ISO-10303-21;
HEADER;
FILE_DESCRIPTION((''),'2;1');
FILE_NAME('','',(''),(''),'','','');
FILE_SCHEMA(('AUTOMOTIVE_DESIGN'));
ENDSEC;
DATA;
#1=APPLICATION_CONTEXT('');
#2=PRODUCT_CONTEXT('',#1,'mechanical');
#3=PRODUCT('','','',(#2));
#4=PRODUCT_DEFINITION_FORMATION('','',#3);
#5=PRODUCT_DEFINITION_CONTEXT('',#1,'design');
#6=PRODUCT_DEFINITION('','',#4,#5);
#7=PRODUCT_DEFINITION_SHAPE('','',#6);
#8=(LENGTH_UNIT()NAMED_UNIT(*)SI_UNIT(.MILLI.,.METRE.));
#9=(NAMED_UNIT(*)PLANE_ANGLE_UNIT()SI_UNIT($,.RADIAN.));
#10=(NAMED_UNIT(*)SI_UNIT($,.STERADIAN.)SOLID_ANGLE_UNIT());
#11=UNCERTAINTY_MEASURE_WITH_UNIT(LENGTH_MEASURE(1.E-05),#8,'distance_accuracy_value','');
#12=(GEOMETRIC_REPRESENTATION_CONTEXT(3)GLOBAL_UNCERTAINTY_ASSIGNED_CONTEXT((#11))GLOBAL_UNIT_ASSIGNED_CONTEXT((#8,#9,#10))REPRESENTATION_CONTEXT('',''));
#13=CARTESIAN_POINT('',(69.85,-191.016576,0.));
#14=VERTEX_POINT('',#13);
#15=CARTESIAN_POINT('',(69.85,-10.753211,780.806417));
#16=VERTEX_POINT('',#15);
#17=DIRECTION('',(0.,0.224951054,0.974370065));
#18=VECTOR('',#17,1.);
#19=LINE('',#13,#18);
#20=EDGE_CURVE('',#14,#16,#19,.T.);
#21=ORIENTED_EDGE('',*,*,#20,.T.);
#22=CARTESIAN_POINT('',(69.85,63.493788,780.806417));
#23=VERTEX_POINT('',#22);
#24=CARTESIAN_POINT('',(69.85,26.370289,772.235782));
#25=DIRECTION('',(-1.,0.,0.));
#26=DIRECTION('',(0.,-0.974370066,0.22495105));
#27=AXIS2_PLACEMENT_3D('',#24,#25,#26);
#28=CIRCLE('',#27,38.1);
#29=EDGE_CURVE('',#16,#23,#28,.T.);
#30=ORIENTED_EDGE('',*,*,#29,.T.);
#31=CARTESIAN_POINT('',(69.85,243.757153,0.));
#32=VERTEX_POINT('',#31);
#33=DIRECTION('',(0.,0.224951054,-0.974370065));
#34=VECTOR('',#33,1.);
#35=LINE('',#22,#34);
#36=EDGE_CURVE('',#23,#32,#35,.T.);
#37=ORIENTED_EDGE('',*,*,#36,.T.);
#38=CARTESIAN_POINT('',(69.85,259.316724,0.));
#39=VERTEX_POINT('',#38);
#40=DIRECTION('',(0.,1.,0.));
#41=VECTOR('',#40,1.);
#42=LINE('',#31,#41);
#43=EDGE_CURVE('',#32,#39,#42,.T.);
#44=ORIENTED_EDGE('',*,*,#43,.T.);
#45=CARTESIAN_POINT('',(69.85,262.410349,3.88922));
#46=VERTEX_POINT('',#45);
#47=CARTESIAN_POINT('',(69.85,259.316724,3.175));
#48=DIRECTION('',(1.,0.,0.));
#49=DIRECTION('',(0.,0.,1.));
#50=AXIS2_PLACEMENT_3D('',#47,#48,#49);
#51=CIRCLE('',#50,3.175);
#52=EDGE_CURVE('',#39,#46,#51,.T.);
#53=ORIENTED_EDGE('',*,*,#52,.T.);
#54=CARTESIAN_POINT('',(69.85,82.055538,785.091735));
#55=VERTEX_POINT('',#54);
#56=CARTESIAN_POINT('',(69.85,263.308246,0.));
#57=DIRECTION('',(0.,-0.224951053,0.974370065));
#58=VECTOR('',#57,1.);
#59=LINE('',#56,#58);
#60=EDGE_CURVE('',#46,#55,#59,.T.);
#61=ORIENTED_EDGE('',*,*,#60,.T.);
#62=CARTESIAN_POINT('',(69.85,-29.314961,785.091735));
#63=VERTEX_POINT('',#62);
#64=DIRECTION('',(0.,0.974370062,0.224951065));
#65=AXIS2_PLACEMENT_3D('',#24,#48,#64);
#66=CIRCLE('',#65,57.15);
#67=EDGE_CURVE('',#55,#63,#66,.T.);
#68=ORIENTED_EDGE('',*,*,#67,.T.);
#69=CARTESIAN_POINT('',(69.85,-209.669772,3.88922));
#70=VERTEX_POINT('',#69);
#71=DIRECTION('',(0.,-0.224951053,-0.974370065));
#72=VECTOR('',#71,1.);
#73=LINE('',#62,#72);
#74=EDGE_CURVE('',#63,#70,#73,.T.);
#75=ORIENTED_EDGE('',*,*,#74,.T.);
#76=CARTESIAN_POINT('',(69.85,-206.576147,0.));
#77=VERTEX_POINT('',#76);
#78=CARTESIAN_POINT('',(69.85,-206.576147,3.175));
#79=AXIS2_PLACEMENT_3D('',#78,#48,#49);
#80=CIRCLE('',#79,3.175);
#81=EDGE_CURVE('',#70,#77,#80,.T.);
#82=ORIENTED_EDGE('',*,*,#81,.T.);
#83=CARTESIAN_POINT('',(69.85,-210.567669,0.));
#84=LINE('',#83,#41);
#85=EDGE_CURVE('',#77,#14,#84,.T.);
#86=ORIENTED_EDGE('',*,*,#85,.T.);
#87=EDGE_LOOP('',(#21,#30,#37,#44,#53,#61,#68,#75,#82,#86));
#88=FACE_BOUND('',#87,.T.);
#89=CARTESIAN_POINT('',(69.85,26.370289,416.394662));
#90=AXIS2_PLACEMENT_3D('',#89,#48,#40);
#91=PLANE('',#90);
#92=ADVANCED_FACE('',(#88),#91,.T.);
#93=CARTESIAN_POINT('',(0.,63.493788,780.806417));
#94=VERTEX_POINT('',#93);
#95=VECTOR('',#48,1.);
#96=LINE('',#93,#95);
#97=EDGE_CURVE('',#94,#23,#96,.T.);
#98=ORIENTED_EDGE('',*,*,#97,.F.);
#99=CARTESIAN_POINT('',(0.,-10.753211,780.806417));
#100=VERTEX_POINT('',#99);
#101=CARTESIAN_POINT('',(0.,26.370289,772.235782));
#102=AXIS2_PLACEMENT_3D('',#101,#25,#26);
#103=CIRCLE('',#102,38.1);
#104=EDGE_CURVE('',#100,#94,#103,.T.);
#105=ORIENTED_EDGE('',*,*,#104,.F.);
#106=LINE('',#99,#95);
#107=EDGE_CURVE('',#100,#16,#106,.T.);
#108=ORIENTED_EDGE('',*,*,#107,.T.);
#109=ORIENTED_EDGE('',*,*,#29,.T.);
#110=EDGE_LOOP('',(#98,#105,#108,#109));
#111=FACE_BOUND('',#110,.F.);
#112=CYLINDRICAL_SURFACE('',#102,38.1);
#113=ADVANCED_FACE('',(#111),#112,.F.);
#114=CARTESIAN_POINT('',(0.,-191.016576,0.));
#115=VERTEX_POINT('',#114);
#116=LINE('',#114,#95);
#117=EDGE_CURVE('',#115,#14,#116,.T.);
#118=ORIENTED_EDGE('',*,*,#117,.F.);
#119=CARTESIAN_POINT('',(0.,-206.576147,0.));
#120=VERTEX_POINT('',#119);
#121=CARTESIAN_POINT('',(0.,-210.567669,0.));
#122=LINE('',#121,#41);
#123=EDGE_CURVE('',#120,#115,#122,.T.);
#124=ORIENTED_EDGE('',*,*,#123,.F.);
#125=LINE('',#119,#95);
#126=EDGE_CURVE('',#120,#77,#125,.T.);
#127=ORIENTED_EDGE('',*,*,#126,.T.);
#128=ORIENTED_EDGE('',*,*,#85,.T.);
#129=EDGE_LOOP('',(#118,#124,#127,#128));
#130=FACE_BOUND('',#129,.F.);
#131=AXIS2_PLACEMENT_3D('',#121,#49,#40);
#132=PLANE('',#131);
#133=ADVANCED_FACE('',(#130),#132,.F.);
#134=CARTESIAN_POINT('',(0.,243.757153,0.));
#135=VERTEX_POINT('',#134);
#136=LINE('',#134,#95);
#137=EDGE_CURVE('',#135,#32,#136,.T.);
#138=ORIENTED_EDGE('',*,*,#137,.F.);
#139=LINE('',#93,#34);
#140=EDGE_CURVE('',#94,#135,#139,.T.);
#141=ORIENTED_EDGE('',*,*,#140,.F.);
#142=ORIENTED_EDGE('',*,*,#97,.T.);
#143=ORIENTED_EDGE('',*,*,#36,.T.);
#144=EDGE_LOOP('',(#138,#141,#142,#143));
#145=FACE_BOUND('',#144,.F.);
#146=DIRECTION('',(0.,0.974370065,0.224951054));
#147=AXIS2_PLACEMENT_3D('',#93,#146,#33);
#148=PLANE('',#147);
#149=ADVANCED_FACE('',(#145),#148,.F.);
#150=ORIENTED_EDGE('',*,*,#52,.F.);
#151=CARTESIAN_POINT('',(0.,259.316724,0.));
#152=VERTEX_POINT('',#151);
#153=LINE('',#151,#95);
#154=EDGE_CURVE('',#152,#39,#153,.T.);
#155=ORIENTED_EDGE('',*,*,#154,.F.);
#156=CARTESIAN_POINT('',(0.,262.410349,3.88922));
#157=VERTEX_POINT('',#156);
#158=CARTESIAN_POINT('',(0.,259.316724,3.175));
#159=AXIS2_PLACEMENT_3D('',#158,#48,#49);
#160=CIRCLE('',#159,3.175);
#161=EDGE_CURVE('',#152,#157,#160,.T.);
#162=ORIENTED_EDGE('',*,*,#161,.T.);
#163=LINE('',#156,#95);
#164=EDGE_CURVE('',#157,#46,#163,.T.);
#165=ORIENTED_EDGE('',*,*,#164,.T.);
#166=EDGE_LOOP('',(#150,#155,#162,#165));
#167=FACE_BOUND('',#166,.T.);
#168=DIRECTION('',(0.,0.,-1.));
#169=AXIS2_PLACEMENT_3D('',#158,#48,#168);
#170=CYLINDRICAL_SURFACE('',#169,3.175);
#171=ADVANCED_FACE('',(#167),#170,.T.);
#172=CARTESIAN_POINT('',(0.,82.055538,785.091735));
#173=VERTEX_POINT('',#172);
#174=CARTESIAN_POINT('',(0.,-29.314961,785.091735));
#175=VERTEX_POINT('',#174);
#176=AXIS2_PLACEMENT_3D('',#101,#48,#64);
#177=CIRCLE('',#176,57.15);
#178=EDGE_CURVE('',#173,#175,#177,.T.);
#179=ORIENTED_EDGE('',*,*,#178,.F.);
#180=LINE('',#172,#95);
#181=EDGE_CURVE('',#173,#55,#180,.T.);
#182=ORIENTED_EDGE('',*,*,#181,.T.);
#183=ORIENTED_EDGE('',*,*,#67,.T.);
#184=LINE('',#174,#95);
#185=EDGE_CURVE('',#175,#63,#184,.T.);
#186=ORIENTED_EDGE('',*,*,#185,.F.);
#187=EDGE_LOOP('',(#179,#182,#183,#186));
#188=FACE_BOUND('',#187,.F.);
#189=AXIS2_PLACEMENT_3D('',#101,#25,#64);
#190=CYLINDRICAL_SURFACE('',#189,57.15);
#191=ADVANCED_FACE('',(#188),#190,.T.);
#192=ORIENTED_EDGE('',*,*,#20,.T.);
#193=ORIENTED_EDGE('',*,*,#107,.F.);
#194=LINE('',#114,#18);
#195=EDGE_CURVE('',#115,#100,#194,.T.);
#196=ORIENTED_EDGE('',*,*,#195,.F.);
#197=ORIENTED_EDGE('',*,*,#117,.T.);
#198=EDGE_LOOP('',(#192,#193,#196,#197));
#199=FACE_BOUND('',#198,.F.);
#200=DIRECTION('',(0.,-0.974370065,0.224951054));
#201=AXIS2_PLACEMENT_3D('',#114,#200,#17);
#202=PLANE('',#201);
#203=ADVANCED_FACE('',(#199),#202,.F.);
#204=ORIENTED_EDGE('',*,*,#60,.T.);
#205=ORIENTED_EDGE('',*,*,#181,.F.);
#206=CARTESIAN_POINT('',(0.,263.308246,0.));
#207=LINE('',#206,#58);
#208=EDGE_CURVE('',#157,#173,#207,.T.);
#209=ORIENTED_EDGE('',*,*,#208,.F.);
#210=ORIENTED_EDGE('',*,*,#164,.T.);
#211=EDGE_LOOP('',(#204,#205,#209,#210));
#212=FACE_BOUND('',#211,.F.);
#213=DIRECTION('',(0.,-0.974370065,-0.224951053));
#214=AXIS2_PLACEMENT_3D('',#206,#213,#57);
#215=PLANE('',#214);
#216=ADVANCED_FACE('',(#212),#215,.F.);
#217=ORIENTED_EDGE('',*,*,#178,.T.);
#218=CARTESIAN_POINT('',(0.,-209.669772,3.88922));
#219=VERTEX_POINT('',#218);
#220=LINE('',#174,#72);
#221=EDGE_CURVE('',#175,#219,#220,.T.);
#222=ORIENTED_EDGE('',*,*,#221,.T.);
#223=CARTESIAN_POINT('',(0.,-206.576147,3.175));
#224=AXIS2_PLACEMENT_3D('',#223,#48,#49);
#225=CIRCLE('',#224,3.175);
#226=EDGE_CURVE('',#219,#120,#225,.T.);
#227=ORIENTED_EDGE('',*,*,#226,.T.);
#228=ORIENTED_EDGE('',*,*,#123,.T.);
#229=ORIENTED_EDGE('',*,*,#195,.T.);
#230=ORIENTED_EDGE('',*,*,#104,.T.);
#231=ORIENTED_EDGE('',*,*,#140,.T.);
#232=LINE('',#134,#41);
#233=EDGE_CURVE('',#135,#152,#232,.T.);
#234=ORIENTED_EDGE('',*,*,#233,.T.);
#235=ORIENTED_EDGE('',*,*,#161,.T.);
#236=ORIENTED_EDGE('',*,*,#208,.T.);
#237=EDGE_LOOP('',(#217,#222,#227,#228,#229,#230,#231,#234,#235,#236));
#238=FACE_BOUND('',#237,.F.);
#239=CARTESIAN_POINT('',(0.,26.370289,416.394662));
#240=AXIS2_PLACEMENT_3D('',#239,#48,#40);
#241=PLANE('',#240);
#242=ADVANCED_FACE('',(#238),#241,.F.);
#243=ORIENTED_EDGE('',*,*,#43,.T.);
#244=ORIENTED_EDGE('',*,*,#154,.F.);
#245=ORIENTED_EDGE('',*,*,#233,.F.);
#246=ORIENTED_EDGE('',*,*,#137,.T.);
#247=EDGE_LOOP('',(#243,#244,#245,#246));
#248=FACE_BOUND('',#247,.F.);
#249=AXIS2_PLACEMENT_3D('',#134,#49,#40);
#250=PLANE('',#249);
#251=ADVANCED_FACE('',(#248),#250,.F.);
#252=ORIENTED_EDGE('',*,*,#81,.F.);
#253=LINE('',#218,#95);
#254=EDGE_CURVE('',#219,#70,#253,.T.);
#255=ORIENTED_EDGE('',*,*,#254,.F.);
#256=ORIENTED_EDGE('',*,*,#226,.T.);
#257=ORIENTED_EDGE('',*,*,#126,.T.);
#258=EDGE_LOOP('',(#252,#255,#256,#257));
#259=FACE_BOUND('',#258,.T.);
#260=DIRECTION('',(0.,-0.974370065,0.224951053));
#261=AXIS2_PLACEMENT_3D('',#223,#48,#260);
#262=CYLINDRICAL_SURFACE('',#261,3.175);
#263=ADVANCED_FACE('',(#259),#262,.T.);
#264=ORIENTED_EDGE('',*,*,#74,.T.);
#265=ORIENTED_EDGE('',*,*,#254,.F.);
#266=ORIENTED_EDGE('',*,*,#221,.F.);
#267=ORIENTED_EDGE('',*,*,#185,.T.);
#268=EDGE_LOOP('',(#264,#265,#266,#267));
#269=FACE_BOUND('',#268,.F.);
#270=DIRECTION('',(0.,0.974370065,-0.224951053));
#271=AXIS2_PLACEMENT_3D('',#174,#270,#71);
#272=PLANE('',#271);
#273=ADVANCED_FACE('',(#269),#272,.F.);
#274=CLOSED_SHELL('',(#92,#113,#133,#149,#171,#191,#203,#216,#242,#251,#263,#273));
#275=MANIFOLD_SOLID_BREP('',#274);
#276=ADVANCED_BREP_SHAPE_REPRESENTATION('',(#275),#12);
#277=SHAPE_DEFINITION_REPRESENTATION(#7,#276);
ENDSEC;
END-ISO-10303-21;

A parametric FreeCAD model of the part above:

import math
import FreeCAD as App
import Part
import Sketcher
Q = App.Units.Quantity


def edges_at(feature, points):
    """Names of the edges that pass closest to the given points."""
    edges = feature.Shape.Edges
    near = lambda p: min(range(len(edges)), key=lambda i: edges[i].distToShape(Part.Vertex(*p))[0])
    return sorted({f"Edge{near(p) + 1}" for p in points})

doc = App.newDocument("Part")
body = doc.addObject("PartDesign::Body", "Body")

# Sketch on YZ plane
sketch1 = body.newObject("Sketcher::SketchObject", "Sketch")
sketch1.AttachmentSupport = (doc.getObject("YZ_Plane"), [""])
sketch1.MapMode = "FlatFace"
sketch1.addGeometry([
    Part.LineSegment(App.Vector(-29, 785, 0), App.Vector(-211, 0, 0)),  # 0
    Part.LineSegment(App.Vector(-211, 0, 0), App.Vector(-191, 0, 0)),  # 1
    Part.LineSegment(App.Vector(-191, 0, 0), App.Vector(-11, 781, 0)),  # 2
    Part.ArcOfCircle(Part.Circle(App.Vector(26, 772, 0), App.Vector(0, 0, 1), 38), math.radians(13), math.radians(167)),  # 3
    Part.LineSegment(App.Vector(63, 781, 0), App.Vector(244, 0, 0)),  # 4
    Part.LineSegment(App.Vector(244, 0, 0), App.Vector(263, 0, 0)),  # 5
    Part.LineSegment(App.Vector(263, 0, 0), App.Vector(82, 785, 0)),  # 6
    Part.ArcOfCircle(Part.Circle(App.Vector(26, 772, 0), App.Vector(0, 0, 1), 57), math.radians(13), math.radians(167)),  # 7
], False)
sketch1.addConstraint([
    Sketcher.Constraint("Coincident", 0, 2, 1, 1),
    Sketcher.Constraint("Coincident", 1, 2, 2, 1),
    Sketcher.Constraint("Tangent", 2, 2, 3, 2),
    Sketcher.Constraint("Tangent", 3, 1, 4, 1),
    Sketcher.Constraint("Coincident", 4, 2, 5, 1),
    Sketcher.Constraint("Coincident", 5, 2, 6, 1),
    Sketcher.Constraint("Tangent", 6, 2, 7, 1),
    Sketcher.Constraint("Tangent", 7, 2, 0, 1),
    Sketcher.Constraint("Horizontal", 1),
    Sketcher.Constraint("Horizontal", 5),
    Sketcher.Constraint("Coincident", 7, 3, 3, 3),
    Sketcher.Constraint("PointOnObject", 0, 2, -1),
    Sketcher.Constraint("PointOnObject", 4, 2, -1),
    Sketcher.Constraint("Parallel", 0, 2),
    Sketcher.Constraint("Parallel", 4, 6),
    Sketcher.Constraint("Equal", 1, 5),
    Sketcher.Constraint("Radius", 3, Q("1.5 in")),
    Sketcher.Constraint("Radius", 7, Q("2.25 in")),
    Sketcher.Constraint("Angle", 0, Q("-103 deg")),
    Sketcher.Constraint("DistanceX", -1, 1, 3, 3, 26.370289),
    Sketcher.Constraint("DistanceY", -1, 1, 7, 3, 772.235782),
])
pad1 = body.newObject("PartDesign::Pad", "Pad")
pad1.Profile = sketch1
pad1.Length = Q("2.75 in")
doc.recompute()

fillet = body.newObject("PartDesign::Fillet", "Fillet")
fillet.Base = (pad1, edges_at(pad1, [(34.925, -210.568, 0), (34.925, 263.308, 0)]))
fillet.Radius = Q("0.125 in")

doc.recompute()
